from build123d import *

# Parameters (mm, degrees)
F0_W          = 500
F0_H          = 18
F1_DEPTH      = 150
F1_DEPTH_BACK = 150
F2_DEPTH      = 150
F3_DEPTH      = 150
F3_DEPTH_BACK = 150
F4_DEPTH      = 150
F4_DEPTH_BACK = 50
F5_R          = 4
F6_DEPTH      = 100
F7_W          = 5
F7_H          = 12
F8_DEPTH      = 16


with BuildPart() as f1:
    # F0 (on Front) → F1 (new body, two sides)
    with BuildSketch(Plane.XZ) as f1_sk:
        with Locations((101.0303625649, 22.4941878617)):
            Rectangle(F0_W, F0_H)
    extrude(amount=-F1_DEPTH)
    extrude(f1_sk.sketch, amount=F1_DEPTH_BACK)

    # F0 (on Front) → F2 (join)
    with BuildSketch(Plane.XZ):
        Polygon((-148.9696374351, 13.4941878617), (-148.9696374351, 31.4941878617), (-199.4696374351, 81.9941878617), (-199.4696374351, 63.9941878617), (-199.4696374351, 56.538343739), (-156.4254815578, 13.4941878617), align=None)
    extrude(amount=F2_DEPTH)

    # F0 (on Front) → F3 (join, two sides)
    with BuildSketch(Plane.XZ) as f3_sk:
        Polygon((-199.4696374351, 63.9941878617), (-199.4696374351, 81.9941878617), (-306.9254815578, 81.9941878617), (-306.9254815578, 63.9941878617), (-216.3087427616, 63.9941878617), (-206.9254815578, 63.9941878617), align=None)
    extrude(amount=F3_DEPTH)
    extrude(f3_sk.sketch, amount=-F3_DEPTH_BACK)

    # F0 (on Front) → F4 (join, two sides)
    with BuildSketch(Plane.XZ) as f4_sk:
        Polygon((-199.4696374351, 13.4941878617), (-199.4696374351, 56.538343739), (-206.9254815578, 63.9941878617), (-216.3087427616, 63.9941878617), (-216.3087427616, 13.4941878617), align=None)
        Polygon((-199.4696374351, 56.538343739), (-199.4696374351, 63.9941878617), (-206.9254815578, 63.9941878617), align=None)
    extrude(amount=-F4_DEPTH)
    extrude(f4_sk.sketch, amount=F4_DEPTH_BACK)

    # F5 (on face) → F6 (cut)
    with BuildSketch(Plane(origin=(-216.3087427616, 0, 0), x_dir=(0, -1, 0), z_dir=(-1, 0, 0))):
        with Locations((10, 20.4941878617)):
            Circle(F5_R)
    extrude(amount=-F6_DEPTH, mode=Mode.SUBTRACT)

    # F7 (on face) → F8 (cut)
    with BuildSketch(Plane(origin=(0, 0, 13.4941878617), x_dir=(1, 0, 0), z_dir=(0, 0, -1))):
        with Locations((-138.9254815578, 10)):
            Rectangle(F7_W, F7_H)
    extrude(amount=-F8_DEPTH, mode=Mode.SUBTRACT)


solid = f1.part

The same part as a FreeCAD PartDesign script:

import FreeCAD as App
import Part
import Sketcher
Q = App.Units.Quantity

doc = App.newDocument("Part")
params = doc.addObject("Spreadsheet::Sheet", "Params")
for row, (alias, value) in enumerate([
    ("sketch1_width", "500 mm"),
    ("sketch1_height", "18 mm"),
    ("pad1_length", "150 mm"),
    ("pad1_length2", "150 mm"),
    ("sketch2_height", "18 mm"),
    ("pad2_length", "150 mm"),
    ("sketch3_height", "18 mm"),
    ("pad3_length", "150 mm"),
    ("pad3_length2", "150 mm"),
    ("sketch4_height", "50.5 mm"),
    ("pad4_length", "150 mm"),
    ("pad4_length2", "50 mm"),
    ("sketch5_diameter", "8 mm"),
    ("pocket1_length", "100 mm"),
    ("sketch6_width", "5 mm"),
    ("sketch6_height", "12 mm"),
    ("pocket2_length", "16 mm"),
], start=1):
    params.set(f"A{row}", alias)
    params.set(f"B{row}", "=" + value)
    params.setAlias(f"B{row}", alias)

body = doc.addObject("PartDesign::Body", "Body")

sketch1 = body.newObject("Sketcher::SketchObject", "Sketch")
sketch1.AttachmentSupport = (doc.getObject("XZ_Plane"), [""])
sketch1.MapMode = "FlatFace"
sketch1.addGeometry(Part.LineSegment(App.Vector(-148.969637, 31.494188, 0), App.Vector(-148.969637, 13.494188, 0)), False)
sketch1.addGeometry(Part.LineSegment(App.Vector(-148.969637, 13.494188, 0), App.Vector(351.030363, 13.494188, 0)), False)
sketch1.addGeometry(Part.LineSegment(App.Vector(351.030363, 13.494188, 0), App.Vector(351.030363, 31.494188, 0)), False)
sketch1.addGeometry(Part.LineSegment(App.Vector(351.030363, 31.494188, 0), App.Vector(-148.969637, 31.494188, 0)), False)
sketch1.addConstraint(Sketcher.Constraint("Coincident", 0, 2, 1, 1))
sketch1.addConstraint(Sketcher.Constraint("Coincident", 1, 2, 2, 1))
sketch1.addConstraint(Sketcher.Constraint("Coincident", 2, 2, 3, 1))
sketch1.addConstraint(Sketcher.Constraint("Coincident", 3, 2, 0, 1))
sketch1.addConstraint(Sketcher.Constraint("Vertical", 0))
sketch1.addConstraint(Sketcher.Constraint("Horizontal", 1))
sketch1.addConstraint(Sketcher.Constraint("Vertical", 2))
sketch1.addConstraint(Sketcher.Constraint("Horizontal", 3))
sketch1.addConstraint(Sketcher.Constraint("DistanceX", 1, 1, 1, 2, Q("500 mm")))
sketch1.addConstraint(Sketcher.Constraint("DistanceY", 0, 2, 0, 1, Q("18 mm")))
sketch1.addConstraint(Sketcher.Constraint("DistanceX", 0, 2, -1, 1, Q("148.969637 mm")))
sketch1.addConstraint(Sketcher.Constraint("DistanceY", -1, 1, 0, 2, Q("13.494188 mm")))
sketch1.setExpression("Constraints[8]", "Params.sketch1_width")
sketch1.setExpression("Constraints[9]", "Params.sketch1_height")
pad1 = body.newObject("PartDesign::Pad", "Pad")
pad1.Profile = sketch1
pad1.Type = "TwoLengths"
pad1.setExpression("Length", "Params.pad1_length")
pad1.setExpression("Length2", "Params.pad1_length2")
pad1.Reversed = True

sketch2 = body.newObject("Sketcher::SketchObject", "Sketch001")
sketch2.AttachmentSupport = (doc.getObject("XZ_Plane"), [""])
sketch2.MapMode = "FlatFace"
sketch2.addGeometry(Part.LineSegment(App.Vector(-148.969637, 13.494188, 0), App.Vector(-148.969637, 31.494188, 0)), False)
sketch2.addGeometry(Part.LineSegment(App.Vector(-148.969637, 31.494188, 0), App.Vector(-199.469637, 81.994188, 0)), False)
sketch2.addGeometry(Part.LineSegment(App.Vector(-199.469637, 81.994188, 0), App.Vector(-199.469637, 56.538344, 0)), False)
sketch2.addGeometry(Part.LineSegment(App.Vector(-199.469637, 56.538344, 0), App.Vector(-156.425482, 13.494188, 0)), False)
sketch2.addGeometry(Part.LineSegment(App.Vector(-156.425482, 13.494188, 0), App.Vector(-148.969637, 13.494188, 0)), False)
sketch2.addConstraint(Sketcher.Constraint("Coincident", 0, 2, 1, 1))
sketch2.addConstraint(Sketcher.Constraint("Coincident", 1, 2, 2, 1))
sketch2.addConstraint(Sketcher.Constraint("Coincident", 2, 2, 3, 1))
sketch2.addConstraint(Sketcher.Constraint("Coincident", 3, 2, 4, 1))
sketch2.addConstraint(Sketcher.Constraint("Coincident", 4, 2, 0, 1))
sketch2.addConstraint(Sketcher.Constraint("Vertical", 0))
sketch2.addConstraint(Sketcher.Constraint("Vertical", 2))
sketch2.addConstraint(Sketcher.Constraint("Horizontal", 4))
sketch2.addConstraint(Sketcher.Constraint("Parallel", 1, 3))
sketch2.addConstraint(Sketcher.Constraint("DistanceY", 0, 1, 0, 2, Q("18 mm")))
sketch2.addConstraint(Sketcher.Constraint("Angle", 1, Q("135 deg")))
sketch2.addConstraint(Sketcher.Constraint("DistanceX", 1, 2, 0, 2, Q("50.5 mm")))
sketch2.addConstraint(Sketcher.Constraint("Distance", 3, Q("60.873629 mm")))
sketch2.addConstraint(Sketcher.Constraint("DistanceX", 3, 2, -1, 1, Q("156.425482 mm")))
sketch2.addConstraint(Sketcher.Constraint("DistanceY", -1, 1, 0, 2, Q("31.494188 mm")))
sketch2.setExpression("Constraints[9]", "Params.sketch2_height")
pad2 = body.newObject("PartDesign::Pad", "Pad001")
pad2.Profile = sketch2
pad2.setExpression("Length", "Params.pad2_length")

sketch3 = body.newObject("Sketcher::SketchObject", "Sketch002")
sketch3.AttachmentSupport = (doc.getObject("XZ_Plane"), [""])
sketch3.MapMode = "FlatFace"
sketch3.addGeometry(Part.LineSegment(App.Vector(-199.469637, 63.994188, 0), App.Vector(-199.469637, 81.994188, 0)), False)
sketch3.addGeometry(Part.LineSegment(App.Vector(-199.469637, 81.994188, 0), App.Vector(-306.925482, 81.994188, 0)), False)
sketch3.addGeometry(Part.LineSegment(App.Vector(-306.925482, 81.994188, 0), App.Vector(-306.925482, 63.994188, 0)), False)
sketch3.addGeometry(Part.LineSegment(App.Vector(-306.925482, 63.994188, 0), App.Vector(-199.469637, 63.994188, 0)), False)
sketch3.addConstraint(Sketcher.Constraint("Coincident", 0, 2, 1, 1))
sketch3.addConstraint(Sketcher.Constraint("Coincident", 1, 2, 2, 1))
sketch3.addConstraint(Sketcher.Constraint("Coincident", 2, 2, 3, 1))
sketch3.addConstraint(Sketcher.Constraint("Coincident", 3, 2, 0, 1))
sketch3.addConstraint(Sketcher.Constraint("Vertical", 0))
sketch3.addConstraint(Sketcher.Constraint("Horizontal", 1))
sketch3.addConstraint(Sketcher.Constraint("Vertical", 2))
sketch3.addConstraint(Sketcher.Constraint("Horizontal", 3))
sketch3.addConstraint(Sketcher.Constraint("DistanceY", 0, 1, 0, 2, Q("18 mm")))
sketch3.addConstraint(Sketcher.Constraint("DistanceX", 1, 2, 1, 1, Q("107.455844 mm")))
sketch3.addConstraint(Sketcher.Constraint("DistanceX", 1, 2, -1, 1, Q("306.925482 mm")))
sketch3.addConstraint(Sketcher.Constraint("DistanceY", -1, 1, 0, 2, Q("81.994188 mm")))
sketch3.setExpression("Constraints[8]", "Params.sketch3_height")
pad3 = body.newObject("PartDesign::Pad", "Pad002")
pad3.Profile = sketch3
pad3.Type = "TwoLengths"
pad3.setExpression("Length", "Params.pad3_length")
pad3.setExpression("Length2", "Params.pad3_length2")

sketch4 = body.newObject("Sketcher::SketchObject", "Sketch003")
sketch4.AttachmentSupport = (doc.getObject("XZ_Plane"), [""])
sketch4.MapMode = "FlatFace"
sketch4.addGeometry(Part.LineSegment(App.Vector(-199.469637, 13.494188, 0), App.Vector(-199.469637, 63.994188, 0)), False)
sketch4.addGeometry(Part.LineSegment(App.Vector(-199.469637, 63.994188, 0), App.Vector(-216.308743, 63.994188, 0)), False)
sketch4.addGeometry(Part.LineSegment(App.Vector(-216.308743, 63.994188, 0), App.Vector(-216.308743, 13.494188, 0)), False)
sketch4.addGeometry(Part.LineSegment(App.Vector(-216.308743, 13.494188, 0), App.Vector(-199.469637, 13.494188, 0)), False)
sketch4.addConstraint(Sketcher.Constraint("Coincident", 0, 2, 1, 1))
sketch4.addConstraint(Sketcher.Constraint("Coincident", 1, 2, 2, 1))
sketch4.addConstraint(Sketcher.Constraint("Coincident", 2, 2, 3, 1))
sketch4.addConstraint(Sketcher.Constraint("Coincident", 3, 2, 0, 1))
sketch4.addConstraint(Sketcher.Constraint("Vertical", 0))
sketch4.addConstraint(Sketcher.Constraint("Horizontal", 1))
sketch4.addConstraint(Sketcher.Constraint("Vertical", 2))
sketch4.addConstraint(Sketcher.Constraint("Horizontal", 3))
sketch4.addConstraint(Sketcher.Constraint("DistanceY", 0, 1, 0, 2, Q("50.5 mm")))
sketch4.addConstraint(Sketcher.Constraint("DistanceX", 1, 2, 1, 1, Q("16.839105 mm")))
sketch4.addConstraint(Sketcher.Constraint("DistanceX", 0, 2, -1, 1, Q("199.469637 mm")))
sketch4.addConstraint(Sketcher.Constraint("DistanceY", -1, 1, 0, 2, Q("63.994188 mm")))
sketch4.setExpression("Constraints[8]", "Params.sketch4_height")
pad4 = body.newObject("PartDesign::Pad", "Pad003")
pad4.Profile = sketch4
pad4.Type = "TwoLengths"
pad4.setExpression("Length", "Params.pad4_length")
pad4.setExpression("Length2", "Params.pad4_length2")
pad4.Reversed = True

sketch5 = body.newObject("Sketcher::SketchObject", "Sketch004")
sketch5.AttachmentSupport = (doc.getObject("YZ_Plane"), [""])
sketch5.MapMode = "FlatFace"
sketch5.AttachmentOffset = App.Placement(App.Vector(0, 0, -216.308743), App.Rotation())
sketch5.addGeometry(Part.Circle(App.Vector(-10, 20.494188, 0), App.Vector(0, 0, 1), 4), False)
sketch5.addConstraint(Sketcher.Constraint("Diameter", 0, Q("8 mm")))
sketch5.addConstraint(Sketcher.Constraint("DistanceX", 0, 3, -1, 1, Q("10 mm")))
sketch5.addConstraint(Sketcher.Constraint("DistanceY", -1, 1, 0, 3, Q("20.494188 mm")))
sketch5.setExpression("Constraints[0]", "Params.sketch5_diameter")
pocket1 = body.newObject("PartDesign::Pocket", "Pocket")
pocket1.Profile = sketch5
pocket1.setExpression("Length", "Params.pocket1_length")
pocket1.Reversed = True

sketch6 = body.newObject("Sketcher::SketchObject", "Sketch005")
sketch6.AttachmentSupport = (doc.getObject("XY_Plane"), [""])
sketch6.MapMode = "FlatFace"
sketch6.AttachmentOffset = App.Placement(App.Vector(0, 0, 13.494188), App.Rotation())
sketch6.addGeometry(Part.LineSegment(App.Vector(-141.425482, -16, 0), App.Vector(-141.425482, -4, 0)), False)
sketch6.addGeometry(Part.LineSegment(App.Vector(-141.425482, -4, 0), App.Vector(-136.425482, -4, 0)), False)
sketch6.addGeometry(Part.LineSegment(App.Vector(-136.425482, -4, 0), App.Vector(-136.425482, -16, 0)), False)
sketch6.addGeometry(Part.LineSegment(App.Vector(-136.425482, -16, 0), App.Vector(-141.425482, -16, 0)), False)
sketch6.addConstraint(Sketcher.Constraint("Coincident", 0, 2, 1, 1))
sketch6.addConstraint(Sketcher.Constraint("Coincident", 1, 2, 2, 1))
sketch6.addConstraint(Sketcher.Constraint("Coincident", 2, 2, 3, 1))
sketch6.addConstraint(Sketcher.Constraint("Coincident", 3, 2, 0, 1))
sketch6.addConstraint(Sketcher.Constraint("Vertical", 0))
sketch6.addConstraint(Sketcher.Constraint("Horizontal", 1))
sketch6.addConstraint(Sketcher.Constraint("Vertical", 2))
sketch6.addConstraint(Sketcher.Constraint("Horizontal", 3))
sketch6.addConstraint(Sketcher.Constraint("DistanceX", 1, 1, 1, 2, Q("5 mm")))
sketch6.addConstraint(Sketcher.Constraint("DistanceY", 0, 1, 0, 2, Q("12 mm")))
sketch6.addConstraint(Sketcher.Constraint("DistanceY", 0, 2, -1, 1, Q("4 mm")))
sketch6.addConstraint(Sketcher.Constraint("DistanceX", 0, 2, -1, 1, Q("141.425482 mm")))
sketch6.setExpression("Constraints[8]", "Params.sketch6_width")
sketch6.setExpression("Constraints[9]", "Params.sketch6_height")
pocket2 = body.newObject("PartDesign::Pocket", "Pocket001")
pocket2.Profile = sketch6
pocket2.setExpression("Length", "Params.pocket2_length")
pocket2.Reversed = True

doc.recompute()
